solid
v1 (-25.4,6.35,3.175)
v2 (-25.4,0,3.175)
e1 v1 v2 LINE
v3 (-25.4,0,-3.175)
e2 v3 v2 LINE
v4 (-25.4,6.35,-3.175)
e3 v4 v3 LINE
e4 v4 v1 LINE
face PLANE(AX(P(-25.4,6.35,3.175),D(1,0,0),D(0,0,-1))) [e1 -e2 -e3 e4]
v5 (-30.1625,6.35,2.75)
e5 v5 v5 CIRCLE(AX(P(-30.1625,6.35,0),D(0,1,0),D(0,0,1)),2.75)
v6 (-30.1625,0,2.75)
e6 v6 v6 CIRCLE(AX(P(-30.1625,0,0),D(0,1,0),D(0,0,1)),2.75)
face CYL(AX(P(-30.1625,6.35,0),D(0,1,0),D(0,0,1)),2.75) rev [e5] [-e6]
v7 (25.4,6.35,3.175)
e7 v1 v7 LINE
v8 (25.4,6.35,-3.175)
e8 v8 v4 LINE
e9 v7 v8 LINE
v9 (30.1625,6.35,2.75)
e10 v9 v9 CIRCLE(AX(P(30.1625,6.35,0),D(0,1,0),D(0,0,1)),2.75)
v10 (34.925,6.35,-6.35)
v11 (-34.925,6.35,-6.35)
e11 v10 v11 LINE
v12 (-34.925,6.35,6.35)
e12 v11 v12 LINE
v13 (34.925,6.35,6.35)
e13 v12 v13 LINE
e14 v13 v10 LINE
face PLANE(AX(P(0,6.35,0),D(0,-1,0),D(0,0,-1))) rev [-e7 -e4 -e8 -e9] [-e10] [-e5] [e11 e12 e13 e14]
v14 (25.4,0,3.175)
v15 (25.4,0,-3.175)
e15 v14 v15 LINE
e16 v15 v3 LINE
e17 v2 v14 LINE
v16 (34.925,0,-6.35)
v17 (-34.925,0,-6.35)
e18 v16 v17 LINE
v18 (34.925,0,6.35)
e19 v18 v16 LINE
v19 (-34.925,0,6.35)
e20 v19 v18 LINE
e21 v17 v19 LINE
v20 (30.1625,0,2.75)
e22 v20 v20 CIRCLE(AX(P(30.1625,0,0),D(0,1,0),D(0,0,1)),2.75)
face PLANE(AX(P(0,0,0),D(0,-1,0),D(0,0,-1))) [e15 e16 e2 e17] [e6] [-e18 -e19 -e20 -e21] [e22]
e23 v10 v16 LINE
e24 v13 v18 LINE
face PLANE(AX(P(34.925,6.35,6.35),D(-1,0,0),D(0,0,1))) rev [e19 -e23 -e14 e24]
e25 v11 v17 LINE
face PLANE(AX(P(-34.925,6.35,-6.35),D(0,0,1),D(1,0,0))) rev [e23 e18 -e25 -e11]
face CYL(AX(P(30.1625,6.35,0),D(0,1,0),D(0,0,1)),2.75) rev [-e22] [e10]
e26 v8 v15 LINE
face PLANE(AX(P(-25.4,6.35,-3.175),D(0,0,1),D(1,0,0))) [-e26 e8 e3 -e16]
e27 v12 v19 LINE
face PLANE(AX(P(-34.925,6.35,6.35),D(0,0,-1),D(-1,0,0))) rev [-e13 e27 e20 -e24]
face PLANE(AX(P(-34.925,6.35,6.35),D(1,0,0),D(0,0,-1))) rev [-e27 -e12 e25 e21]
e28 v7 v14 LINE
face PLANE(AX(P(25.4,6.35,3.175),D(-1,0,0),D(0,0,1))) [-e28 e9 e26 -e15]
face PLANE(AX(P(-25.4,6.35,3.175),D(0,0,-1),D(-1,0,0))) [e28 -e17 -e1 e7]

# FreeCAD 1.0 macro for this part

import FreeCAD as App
import Part
import Sketcher

V = App.Vector
Q = App.Units.Quantity


def add_polygon(sketch, points):
    """Adds a closed chain of lines whose ends are joined by coincident constraints."""
    first, n = sketch.GeometryCount, len(points)
    for a, b in zip(points, points[1:] + points[:1]):
        sketch.addGeometry(Part.LineSegment(App.Vector(*a, 0), App.Vector(*b, 0)), False)
    for i in range(n):
        sketch.addConstraint(Sketcher.Constraint("Coincident", first + i, 2, first + (i + 1) % n, 1))

doc = App.newDocument("Part")
params = doc.addObject("Spreadsheet::Sheet", "Params")
for row, (alias, value) in enumerate([
    ("sketch1_width", "2 in"),
    ("sketch1_height", "0.5 in"),
    ("sketch1_width2", "2.75 in"),
    ("sketch1_height2", "0.25 in"),
    ("pad1_length", "0.25 in"),
    ("hole_diameter", "5.5 mm"),
], start=1):
    params.set(f"A{row}", alias)
    params.set(f"B{row}", "=" + value)
    params.setAlias(f"B{row}", alias)

body = doc.addObject("PartDesign::Body", "Body")

# Sketch on XZ plane
sketch1 = doc.addObject("Sketcher::SketchObject", "Sketch")
body.addObject(sketch1)
sketch1.AttachmentSupport = (doc.XZ_Plane, [""])
sketch1.MapMode = "FlatFace"
add_polygon(sketch1, [(-35, -6), (-35, 6), (35, 6), (35, -6)])  # lines 0-3
add_polygon(sketch1, [(25, 3), (-25, 3), (-25, -3), (25, -3)])  # lines 4-7
sketch1.addConstraint(Sketcher.Constraint("Vertical", 0))
sketch1.addConstraint(Sketcher.Constraint("Horizontal", 1))
sketch1.addConstraint(Sketcher.Constraint("Vertical", 2))
sketch1.addConstraint(Sketcher.Constraint("Horizontal", 3))
sketch1.addConstraint(Sketcher.Constraint("Horizontal", 4))
sketch1.addConstraint(Sketcher.Constraint("Vertical", 5))
sketch1.addConstraint(Sketcher.Constraint("Horizontal", 6))
sketch1.addConstraint(Sketcher.Constraint("Vertical", 7))
sketch1.addConstraint(Sketcher.Constraint("Symmetric", 0, 2, 2, 2, -1, 1))
sketch1.addConstraint(Sketcher.Constraint("Symmetric", 4, 2, 6, 2, -1, 1))
sketch1.addConstraint(Sketcher.Constraint("DistanceX", 4, 2, 4, 1, Q("2 in")))
sketch1.addConstraint(Sketcher.Constraint("DistanceY", 0, 1, 0, 2, Q("0.5 in")))
sketch1.addConstraint(Sketcher.Constraint("DistanceX", 1, 1, 1, 2, Q("2.75 in")))
sketch1.addConstraint(Sketcher.Constraint("DistanceY", 5, 2, 5, 1, Q("0.25 in")))
sketch1.setExpression("Constraints[18]", "Params.sketch1_width")
sketch1.setExpression("Constraints[19]", "Params.sketch1_height")
sketch1.setExpression("Constraints[20]", "Params.sketch1_width2")
sketch1.setExpression("Constraints[21]", "Params.sketch1_height2")
pad1 = doc.addObject("PartDesign::Pad", "Pad")
body.addObject(pad1)
pad1.Profile = sketch1
pad1.setExpression("Length", "Params.pad1_length")
pad1.Reversed = True

# Sketch on XZ plane
sketch2 = doc.addObject("Sketcher::SketchObject", "Sketch001")
body.addObject(sketch2)
sketch2.AttachmentSupport = (doc.XZ_Plane, [""])
sketch2.MapMode = "FlatFace"
sketch2.AttachmentOffset = App.Placement(V(0, 0, -0.25 * 25.4), App.Rotation())
sketch2.addGeometry(Part.Circle(V(-30.2, 0, 0), V(0, 0, 1), 2.8), False)
sketch2.addConstraint(Sketcher.Constraint("PointOnObject", 0, 3, -1))
sketch2.addConstraint(Sketcher.Constraint("Diameter", 0, 5.5))
sketch2.addConstraint(Sketcher.Constraint("DistanceX", 0, 3, -1, 1, Q("1.1875 in")))
doc.recompute()
hole = doc.addObject("PartDesign::Hole", "Hole")
body.addObject(hole)
hole.Profile = sketch2
hole.ThreadType = "None"
hole.setExpression("Diameter", "Params.hole_diameter")
hole.DepthType = "ThroughAll"
hole.Reversed = True
doc.recompute()

mirrored = doc.addObject("PartDesign::Mirrored", "Mirrored")
body.addObject(mirrored)
mirrored.Originals = [hole]
mirrored.MirrorPlane = (doc.YZ_Plane, [""])
body.Tip = mirrored

doc.recompute()
